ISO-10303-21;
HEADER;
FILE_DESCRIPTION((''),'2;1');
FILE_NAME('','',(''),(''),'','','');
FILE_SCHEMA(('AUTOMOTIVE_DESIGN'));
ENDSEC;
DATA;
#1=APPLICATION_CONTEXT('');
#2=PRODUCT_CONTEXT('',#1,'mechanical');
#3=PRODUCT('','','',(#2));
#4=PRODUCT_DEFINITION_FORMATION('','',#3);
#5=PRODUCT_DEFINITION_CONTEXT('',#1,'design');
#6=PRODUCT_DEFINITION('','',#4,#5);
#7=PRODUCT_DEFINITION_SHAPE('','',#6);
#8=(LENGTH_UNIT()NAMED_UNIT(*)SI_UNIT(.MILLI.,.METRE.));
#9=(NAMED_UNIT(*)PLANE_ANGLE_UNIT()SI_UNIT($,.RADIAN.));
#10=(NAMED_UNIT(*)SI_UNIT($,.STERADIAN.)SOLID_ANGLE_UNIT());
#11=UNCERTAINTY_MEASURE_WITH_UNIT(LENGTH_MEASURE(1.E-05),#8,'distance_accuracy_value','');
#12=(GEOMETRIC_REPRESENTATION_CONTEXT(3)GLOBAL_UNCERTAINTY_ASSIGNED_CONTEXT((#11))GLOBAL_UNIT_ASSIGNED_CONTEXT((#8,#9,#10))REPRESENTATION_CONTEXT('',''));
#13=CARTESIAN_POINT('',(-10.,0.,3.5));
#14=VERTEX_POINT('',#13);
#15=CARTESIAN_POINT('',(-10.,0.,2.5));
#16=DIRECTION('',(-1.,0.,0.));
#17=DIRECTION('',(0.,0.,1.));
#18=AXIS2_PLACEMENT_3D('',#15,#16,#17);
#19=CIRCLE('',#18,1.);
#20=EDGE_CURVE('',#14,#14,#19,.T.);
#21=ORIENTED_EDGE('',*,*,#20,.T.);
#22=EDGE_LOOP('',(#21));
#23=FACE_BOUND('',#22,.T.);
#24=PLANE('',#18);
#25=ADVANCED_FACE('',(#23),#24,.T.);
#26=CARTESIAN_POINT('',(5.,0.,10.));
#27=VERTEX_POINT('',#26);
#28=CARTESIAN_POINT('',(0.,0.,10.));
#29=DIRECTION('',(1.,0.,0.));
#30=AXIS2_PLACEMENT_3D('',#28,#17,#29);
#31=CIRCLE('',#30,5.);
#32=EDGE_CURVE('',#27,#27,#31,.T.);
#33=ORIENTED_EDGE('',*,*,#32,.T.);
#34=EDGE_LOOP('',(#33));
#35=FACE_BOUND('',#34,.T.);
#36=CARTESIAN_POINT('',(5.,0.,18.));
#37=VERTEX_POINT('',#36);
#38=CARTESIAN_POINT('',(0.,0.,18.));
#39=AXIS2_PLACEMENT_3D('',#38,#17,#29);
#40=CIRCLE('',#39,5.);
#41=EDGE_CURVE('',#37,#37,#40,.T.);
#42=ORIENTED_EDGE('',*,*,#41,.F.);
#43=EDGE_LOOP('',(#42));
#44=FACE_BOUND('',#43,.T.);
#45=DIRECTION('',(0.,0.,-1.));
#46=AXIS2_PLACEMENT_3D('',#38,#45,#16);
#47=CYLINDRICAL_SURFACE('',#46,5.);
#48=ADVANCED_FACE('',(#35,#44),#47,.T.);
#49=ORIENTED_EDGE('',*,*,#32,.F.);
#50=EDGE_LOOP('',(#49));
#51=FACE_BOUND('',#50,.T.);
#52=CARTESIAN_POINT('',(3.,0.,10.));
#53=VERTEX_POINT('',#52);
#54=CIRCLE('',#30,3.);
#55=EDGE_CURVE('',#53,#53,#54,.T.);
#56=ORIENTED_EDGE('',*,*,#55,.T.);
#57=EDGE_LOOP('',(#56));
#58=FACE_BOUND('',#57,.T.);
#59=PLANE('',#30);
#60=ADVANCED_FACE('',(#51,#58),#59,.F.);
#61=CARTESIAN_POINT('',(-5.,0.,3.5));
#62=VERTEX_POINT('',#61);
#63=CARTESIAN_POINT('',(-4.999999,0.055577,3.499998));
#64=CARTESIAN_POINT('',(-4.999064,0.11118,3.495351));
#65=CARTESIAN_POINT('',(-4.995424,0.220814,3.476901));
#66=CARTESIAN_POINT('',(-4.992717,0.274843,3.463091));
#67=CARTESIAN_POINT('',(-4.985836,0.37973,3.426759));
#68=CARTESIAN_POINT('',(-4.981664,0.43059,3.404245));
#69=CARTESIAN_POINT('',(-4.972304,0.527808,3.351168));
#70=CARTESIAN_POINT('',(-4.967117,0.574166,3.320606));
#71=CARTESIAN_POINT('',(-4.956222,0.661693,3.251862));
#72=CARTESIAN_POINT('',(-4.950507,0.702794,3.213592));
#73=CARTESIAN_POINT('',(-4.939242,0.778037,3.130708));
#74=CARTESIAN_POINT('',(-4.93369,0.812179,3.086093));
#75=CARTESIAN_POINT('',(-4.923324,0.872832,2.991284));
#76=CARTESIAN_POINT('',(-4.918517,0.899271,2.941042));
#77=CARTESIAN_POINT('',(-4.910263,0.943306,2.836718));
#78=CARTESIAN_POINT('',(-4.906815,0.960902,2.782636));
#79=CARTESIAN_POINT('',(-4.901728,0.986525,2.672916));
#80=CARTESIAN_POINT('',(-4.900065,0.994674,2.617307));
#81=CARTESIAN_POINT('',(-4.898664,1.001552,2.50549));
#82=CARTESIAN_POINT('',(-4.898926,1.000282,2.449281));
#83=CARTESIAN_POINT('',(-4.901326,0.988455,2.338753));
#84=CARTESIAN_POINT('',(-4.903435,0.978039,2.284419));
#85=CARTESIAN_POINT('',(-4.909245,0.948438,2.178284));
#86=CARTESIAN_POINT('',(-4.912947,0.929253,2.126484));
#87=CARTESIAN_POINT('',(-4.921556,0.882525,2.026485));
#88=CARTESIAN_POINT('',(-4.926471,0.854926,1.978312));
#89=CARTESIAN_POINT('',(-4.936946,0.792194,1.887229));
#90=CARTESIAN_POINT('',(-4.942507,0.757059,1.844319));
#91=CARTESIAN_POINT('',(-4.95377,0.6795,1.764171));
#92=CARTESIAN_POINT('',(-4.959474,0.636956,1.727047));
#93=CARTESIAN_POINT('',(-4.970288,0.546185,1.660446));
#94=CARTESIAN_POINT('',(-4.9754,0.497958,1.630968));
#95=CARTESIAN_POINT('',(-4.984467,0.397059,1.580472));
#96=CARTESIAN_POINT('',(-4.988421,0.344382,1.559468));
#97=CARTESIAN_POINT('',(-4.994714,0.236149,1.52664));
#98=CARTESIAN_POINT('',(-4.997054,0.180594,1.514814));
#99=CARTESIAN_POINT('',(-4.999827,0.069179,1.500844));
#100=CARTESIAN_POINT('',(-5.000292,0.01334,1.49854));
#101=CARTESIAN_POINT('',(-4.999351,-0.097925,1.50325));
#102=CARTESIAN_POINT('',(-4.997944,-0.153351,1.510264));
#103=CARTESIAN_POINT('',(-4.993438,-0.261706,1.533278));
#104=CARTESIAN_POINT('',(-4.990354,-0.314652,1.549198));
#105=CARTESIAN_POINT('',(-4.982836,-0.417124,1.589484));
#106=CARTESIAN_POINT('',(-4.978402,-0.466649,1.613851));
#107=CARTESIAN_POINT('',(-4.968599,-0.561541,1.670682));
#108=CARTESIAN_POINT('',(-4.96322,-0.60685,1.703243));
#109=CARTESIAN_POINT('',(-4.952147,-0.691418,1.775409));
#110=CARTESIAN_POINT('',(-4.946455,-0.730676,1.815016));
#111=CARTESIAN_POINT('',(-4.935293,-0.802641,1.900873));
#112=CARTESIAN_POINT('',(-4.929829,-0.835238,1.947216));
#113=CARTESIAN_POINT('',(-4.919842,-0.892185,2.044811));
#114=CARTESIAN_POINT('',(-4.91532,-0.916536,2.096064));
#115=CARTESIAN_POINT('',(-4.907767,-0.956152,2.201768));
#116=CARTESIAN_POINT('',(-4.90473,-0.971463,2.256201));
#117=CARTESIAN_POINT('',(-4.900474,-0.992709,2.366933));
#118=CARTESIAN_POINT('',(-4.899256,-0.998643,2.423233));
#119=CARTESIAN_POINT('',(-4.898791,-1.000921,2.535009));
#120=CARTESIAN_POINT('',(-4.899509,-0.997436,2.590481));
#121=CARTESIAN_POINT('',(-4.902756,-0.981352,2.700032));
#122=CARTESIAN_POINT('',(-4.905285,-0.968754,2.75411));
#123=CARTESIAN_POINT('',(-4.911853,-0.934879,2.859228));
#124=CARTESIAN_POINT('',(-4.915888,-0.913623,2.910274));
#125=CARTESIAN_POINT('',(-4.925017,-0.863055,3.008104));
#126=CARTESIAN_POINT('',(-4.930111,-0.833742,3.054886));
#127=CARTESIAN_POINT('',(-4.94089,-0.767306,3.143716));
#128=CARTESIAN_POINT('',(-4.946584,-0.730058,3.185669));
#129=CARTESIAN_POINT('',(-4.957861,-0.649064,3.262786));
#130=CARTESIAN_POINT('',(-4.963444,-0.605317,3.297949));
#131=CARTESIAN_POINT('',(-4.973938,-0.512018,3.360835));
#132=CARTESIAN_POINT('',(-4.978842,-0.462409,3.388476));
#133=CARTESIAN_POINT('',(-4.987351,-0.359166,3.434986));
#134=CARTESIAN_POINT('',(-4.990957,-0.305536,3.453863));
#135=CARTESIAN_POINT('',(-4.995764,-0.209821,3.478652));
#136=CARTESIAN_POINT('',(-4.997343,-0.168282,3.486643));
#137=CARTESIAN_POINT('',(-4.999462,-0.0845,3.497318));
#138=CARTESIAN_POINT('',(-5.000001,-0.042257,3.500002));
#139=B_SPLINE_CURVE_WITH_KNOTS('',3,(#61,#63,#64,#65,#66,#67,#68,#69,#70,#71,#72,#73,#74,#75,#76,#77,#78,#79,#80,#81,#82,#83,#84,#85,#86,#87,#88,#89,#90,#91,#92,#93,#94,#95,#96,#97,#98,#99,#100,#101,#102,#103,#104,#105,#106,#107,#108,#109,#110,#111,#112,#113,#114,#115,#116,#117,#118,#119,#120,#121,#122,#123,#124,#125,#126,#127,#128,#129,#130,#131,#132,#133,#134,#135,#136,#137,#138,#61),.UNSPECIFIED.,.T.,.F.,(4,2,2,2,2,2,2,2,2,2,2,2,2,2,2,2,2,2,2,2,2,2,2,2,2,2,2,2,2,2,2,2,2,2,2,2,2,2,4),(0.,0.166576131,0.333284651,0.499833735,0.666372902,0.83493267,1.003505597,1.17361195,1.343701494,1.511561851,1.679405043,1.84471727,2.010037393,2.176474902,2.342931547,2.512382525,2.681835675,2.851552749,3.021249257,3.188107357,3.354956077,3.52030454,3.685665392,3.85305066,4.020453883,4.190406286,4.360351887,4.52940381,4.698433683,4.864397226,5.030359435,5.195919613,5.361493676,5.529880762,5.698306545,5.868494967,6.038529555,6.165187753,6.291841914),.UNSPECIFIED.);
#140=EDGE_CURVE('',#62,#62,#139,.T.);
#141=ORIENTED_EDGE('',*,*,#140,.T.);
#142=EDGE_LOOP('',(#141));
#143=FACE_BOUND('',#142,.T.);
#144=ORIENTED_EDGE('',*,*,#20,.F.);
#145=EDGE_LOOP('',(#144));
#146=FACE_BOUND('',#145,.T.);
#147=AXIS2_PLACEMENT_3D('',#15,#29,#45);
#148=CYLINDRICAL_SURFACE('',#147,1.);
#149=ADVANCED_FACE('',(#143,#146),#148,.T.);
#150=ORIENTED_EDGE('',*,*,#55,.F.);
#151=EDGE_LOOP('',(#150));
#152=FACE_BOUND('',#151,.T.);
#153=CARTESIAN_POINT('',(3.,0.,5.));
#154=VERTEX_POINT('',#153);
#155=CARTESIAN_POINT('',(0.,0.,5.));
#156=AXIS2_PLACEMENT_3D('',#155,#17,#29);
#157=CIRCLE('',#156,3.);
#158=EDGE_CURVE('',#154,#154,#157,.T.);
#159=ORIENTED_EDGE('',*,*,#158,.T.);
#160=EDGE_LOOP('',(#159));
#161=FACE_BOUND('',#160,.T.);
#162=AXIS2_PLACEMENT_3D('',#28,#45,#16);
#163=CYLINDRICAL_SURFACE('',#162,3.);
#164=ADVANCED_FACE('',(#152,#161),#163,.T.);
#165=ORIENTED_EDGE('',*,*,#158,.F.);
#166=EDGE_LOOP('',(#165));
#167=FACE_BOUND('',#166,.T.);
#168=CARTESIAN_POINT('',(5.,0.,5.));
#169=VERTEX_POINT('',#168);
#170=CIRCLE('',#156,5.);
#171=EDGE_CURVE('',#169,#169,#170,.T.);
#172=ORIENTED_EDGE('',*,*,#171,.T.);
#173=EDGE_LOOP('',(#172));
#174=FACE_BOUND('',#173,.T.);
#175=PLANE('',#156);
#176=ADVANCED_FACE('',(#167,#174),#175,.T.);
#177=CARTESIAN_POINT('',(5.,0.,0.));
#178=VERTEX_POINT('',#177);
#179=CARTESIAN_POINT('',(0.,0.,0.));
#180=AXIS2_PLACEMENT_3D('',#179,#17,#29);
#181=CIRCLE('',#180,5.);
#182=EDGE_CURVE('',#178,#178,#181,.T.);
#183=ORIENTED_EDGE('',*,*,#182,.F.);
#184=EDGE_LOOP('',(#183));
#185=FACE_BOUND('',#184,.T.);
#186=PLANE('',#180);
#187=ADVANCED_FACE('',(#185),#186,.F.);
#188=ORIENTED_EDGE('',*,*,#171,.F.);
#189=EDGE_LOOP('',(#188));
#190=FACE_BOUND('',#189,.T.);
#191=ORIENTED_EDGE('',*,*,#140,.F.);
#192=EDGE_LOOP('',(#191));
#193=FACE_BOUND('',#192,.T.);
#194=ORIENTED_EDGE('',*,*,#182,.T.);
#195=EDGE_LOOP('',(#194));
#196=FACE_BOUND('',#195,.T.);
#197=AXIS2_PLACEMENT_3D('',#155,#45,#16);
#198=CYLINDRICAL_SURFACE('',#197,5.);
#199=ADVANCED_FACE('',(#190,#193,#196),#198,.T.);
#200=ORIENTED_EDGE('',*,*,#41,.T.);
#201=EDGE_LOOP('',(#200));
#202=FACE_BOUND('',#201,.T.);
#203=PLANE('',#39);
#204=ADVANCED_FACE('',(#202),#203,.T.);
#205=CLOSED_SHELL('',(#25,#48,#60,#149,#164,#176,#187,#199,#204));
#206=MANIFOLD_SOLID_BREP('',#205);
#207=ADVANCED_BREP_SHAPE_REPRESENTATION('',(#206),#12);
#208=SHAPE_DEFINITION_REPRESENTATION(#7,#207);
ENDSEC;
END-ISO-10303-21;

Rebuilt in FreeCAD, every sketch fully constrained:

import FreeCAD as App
import Part
import Sketcher

V = App.Vector

doc = App.newDocument("Part")
body = doc.addObject("PartDesign::Body", "Body")

sketch1 = body.newObject("Sketcher::SketchObject", "Sketch")
sketch1.AttachmentSupport = (doc.getObject("XY_Plane"), [""])
sketch1.MapMode = "FlatFace"
sketch1.addGeometry(Part.Circle(V(0, 0, 0), V(0, 0, 1), 5), False)
sketch1.addConstraint(Sketcher.Constraint("Coincident", 0, 3, -1, 1))
sketch1.addConstraint(Sketcher.Constraint("Diameter", 0, 10.0))
pad1 = body.newObject("PartDesign::Pad", "Pad")
pad1.Profile = sketch1
pad1.Length = 5

sketch2 = body.newObject("Sketcher::SketchObject", "Sketch001")
sketch2.AttachmentSupport = (doc.getObject("XY_Plane"), [""])
sketch2.MapMode = "FlatFace"
sketch2.AttachmentOffset = App.Placement(V(0, 0, 5), App.Rotation())
sketch2.addGeometry(Part.Circle(V(0, 0, 0), V(0, 0, 1), 3), False)
sketch2.addConstraint(Sketcher.Constraint("Coincident", 0, 3, -1, 1))
sketch2.addConstraint(Sketcher.Constraint("Diameter", 0, 6.0))
pad2 = body.newObject("PartDesign::Pad", "Pad001")
pad2.Profile = sketch2
pad2.Length = 5

sketch3 = body.newObject("Sketcher::SketchObject", "Sketch002")
sketch3.AttachmentSupport = (doc.getObject("XY_Plane"), [""])
sketch3.MapMode = "FlatFace"
sketch3.AttachmentOffset = App.Placement(V(0, 0, 10), App.Rotation())
sketch3.addGeometry(Part.Circle(V(0, 0, 0), V(0, 0, 1), 5), False)
sketch3.addConstraint(Sketcher.Constraint("Coincident", 0, 3, -1, 1))
sketch3.addConstraint(Sketcher.Constraint("Diameter", 0, 10.0))
pad3 = body.newObject("PartDesign::Pad", "Pad002")
pad3.Profile = sketch3
pad3.Length = 8

sketch4 = body.newObject("Sketcher::SketchObject", "Sketch003")
sketch4.AttachmentSupport = (doc.getObject("YZ_Plane"), [""])
sketch4.MapMode = "FlatFace"
sketch4.addGeometry(Part.Circle(V(0, 2.5, 0), V(0, 0, 1), 1), False)
sketch4.addConstraint(Sketcher.Constraint("PointOnObject", 0, 3, -2))
sketch4.addConstraint(Sketcher.Constraint("Diameter", 0, 2.0))
sketch4.addConstraint(Sketcher.Constraint("DistanceY", -1, 1, 0, 3, 2.5))
pad4 = body.newObject("PartDesign::Pad", "Pad003")
pad4.Profile = sketch4
pad4.Length = 10
pad4.Reversed = True

doc.recompute()
